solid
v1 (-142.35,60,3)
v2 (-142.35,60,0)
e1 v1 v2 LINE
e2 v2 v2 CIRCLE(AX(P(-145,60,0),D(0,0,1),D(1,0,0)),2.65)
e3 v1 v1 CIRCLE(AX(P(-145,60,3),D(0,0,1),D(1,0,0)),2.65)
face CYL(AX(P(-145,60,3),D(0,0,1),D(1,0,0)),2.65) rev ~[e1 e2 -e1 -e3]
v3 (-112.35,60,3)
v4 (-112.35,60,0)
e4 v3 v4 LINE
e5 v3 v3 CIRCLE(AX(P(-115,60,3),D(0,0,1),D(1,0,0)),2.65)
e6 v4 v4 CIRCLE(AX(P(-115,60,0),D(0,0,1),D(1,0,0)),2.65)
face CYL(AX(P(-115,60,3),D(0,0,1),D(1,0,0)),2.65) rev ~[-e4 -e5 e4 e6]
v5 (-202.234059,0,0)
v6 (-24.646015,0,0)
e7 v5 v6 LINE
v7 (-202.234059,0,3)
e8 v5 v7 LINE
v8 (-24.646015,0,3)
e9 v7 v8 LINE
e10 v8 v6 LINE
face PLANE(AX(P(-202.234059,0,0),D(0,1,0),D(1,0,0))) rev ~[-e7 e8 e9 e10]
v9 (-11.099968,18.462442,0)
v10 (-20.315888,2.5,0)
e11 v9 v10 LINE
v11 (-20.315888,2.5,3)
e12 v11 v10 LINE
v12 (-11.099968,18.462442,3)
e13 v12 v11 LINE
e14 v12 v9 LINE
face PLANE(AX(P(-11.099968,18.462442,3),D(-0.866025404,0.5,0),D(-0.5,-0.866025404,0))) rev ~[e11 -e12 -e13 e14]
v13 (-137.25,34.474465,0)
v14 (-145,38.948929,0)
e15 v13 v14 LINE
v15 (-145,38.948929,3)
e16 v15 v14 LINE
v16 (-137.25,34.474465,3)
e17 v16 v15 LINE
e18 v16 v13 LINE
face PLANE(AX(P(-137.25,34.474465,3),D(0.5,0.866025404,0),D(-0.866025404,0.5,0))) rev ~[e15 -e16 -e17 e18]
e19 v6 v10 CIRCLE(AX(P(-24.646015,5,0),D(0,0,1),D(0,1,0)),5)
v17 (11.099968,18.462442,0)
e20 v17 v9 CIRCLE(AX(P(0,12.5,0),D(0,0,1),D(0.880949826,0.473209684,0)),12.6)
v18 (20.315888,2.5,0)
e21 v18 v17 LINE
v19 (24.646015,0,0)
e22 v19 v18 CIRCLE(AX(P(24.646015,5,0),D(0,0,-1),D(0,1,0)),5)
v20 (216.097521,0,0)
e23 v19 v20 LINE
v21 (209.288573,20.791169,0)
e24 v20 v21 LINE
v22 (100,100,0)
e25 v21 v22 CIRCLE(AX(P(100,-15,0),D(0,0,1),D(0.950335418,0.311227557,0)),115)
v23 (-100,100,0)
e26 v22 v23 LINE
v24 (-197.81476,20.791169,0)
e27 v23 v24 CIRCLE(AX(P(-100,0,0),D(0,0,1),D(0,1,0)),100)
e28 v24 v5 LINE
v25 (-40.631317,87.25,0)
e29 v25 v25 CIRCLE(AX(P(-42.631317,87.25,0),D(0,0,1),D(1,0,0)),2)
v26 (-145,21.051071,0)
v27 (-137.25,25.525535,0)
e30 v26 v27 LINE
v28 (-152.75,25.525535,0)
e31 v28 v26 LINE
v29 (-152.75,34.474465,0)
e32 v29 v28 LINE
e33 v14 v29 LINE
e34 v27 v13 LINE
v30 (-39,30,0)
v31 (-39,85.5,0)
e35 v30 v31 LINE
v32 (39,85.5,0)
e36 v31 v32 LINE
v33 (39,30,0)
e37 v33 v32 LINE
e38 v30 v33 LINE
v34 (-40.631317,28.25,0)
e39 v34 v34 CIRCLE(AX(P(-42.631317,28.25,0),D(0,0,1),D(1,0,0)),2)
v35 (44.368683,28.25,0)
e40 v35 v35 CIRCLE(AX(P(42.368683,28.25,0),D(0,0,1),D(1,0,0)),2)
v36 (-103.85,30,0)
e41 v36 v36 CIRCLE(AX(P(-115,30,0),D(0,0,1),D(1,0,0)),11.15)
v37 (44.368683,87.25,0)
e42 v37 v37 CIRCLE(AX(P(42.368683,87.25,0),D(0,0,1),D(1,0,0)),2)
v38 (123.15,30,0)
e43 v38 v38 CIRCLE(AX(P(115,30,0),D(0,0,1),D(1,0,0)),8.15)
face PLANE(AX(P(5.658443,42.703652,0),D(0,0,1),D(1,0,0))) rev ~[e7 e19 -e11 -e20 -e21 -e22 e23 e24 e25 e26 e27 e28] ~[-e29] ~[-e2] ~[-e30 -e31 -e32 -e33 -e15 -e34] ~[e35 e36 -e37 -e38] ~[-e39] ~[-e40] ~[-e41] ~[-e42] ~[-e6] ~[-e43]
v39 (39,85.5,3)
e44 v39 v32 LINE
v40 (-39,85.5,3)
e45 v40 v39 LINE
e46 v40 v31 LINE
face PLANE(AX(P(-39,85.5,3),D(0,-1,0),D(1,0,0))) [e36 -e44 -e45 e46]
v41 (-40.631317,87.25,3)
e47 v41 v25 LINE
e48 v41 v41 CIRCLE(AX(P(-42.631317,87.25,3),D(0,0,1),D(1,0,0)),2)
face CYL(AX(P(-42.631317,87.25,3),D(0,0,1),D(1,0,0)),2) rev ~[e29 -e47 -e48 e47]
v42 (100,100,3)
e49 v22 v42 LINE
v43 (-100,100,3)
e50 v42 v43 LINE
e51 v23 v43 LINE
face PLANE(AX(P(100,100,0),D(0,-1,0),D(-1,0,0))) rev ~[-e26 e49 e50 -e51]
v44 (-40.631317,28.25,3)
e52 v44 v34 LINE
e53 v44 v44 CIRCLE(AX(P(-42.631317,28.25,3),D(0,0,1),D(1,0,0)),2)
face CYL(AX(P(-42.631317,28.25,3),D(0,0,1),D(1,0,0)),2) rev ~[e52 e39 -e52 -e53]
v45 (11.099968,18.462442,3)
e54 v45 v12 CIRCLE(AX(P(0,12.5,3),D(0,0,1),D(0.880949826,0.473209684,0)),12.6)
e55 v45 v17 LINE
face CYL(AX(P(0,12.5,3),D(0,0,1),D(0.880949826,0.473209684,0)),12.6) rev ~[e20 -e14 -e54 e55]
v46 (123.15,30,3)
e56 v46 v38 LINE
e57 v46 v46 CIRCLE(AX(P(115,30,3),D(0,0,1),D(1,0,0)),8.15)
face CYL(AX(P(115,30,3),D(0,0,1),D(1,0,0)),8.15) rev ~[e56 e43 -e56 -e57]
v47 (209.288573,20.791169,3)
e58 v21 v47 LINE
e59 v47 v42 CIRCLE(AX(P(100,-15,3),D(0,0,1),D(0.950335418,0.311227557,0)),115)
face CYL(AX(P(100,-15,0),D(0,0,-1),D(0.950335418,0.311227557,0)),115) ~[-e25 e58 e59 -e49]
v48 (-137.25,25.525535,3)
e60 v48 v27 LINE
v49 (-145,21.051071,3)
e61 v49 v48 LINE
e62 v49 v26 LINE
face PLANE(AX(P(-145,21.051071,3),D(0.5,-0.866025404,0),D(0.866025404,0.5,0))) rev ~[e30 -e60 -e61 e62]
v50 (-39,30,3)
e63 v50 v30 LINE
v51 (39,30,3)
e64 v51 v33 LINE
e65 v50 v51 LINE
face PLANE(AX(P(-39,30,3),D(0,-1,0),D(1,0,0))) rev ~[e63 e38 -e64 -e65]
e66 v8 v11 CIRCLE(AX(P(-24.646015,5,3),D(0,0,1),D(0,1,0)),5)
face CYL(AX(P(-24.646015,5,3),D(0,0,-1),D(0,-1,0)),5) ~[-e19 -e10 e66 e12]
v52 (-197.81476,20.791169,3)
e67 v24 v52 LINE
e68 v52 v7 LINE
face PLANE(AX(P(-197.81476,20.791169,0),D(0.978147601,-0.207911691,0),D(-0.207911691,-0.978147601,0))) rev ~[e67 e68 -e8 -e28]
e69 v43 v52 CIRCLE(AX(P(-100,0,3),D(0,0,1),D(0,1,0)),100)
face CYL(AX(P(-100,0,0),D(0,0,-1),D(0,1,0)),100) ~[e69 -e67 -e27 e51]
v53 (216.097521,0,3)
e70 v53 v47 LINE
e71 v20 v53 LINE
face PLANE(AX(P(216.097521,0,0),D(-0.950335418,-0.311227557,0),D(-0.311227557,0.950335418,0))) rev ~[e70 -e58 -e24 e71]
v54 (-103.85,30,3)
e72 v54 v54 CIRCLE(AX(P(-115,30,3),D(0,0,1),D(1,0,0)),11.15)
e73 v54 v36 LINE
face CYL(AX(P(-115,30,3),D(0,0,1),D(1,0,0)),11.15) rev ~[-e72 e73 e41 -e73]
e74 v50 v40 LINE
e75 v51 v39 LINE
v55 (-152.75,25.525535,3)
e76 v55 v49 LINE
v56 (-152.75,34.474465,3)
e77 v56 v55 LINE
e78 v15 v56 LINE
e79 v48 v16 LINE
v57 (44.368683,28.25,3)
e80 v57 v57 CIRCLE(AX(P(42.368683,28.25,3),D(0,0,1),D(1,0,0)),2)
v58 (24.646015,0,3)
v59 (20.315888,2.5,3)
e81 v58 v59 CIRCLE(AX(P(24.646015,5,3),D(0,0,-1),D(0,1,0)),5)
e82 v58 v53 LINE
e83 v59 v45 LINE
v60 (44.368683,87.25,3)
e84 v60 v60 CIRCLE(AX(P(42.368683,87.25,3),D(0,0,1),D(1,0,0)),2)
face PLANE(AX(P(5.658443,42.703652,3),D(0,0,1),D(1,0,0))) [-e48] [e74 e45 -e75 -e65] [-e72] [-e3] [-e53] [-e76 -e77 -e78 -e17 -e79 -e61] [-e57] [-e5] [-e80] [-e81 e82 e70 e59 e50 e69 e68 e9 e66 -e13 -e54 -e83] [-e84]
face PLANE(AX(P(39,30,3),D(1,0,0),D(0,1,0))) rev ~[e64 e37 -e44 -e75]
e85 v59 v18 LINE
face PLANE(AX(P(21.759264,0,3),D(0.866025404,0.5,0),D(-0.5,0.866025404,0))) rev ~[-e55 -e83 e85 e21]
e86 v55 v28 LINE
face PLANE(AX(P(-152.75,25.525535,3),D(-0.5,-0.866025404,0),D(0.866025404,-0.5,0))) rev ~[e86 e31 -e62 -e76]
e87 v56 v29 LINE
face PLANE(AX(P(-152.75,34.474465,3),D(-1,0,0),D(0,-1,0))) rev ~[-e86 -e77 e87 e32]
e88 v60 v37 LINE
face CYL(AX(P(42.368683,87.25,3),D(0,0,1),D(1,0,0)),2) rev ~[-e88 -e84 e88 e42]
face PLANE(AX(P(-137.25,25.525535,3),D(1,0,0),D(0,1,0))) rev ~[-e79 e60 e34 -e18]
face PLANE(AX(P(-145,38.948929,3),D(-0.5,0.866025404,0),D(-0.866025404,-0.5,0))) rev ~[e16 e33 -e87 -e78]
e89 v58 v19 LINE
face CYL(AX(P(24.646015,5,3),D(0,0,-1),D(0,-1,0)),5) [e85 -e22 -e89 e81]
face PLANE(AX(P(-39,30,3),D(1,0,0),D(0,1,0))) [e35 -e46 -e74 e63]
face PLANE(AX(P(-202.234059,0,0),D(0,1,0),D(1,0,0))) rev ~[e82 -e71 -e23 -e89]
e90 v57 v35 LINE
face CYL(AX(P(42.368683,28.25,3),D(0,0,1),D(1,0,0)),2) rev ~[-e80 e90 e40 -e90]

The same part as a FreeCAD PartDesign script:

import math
import FreeCAD as App
import Part
import Sketcher
Q = App.Units.Quantity


def edges_at(feature, points):
    """Names of the edges that pass closest to the given points."""
    edges = feature.Shape.Edges
    near = lambda p: min(range(len(edges)), key=lambda i: edges[i].distToShape(Part.Vertex(*p))[0])
    return sorted({f"Edge{near(p) + 1}" for p in points})

doc = App.newDocument("Part")
body = doc.addObject("PartDesign::Body", "Body")

# Sketch on XY plane
sketch1 = body.newObject("Sketcher::SketchObject", "Sketch")
sketch1.AttachmentSupport = (doc.getObject("XY_Plane"), [""])
sketch1.MapMode = "FlatFace"
sketch1.addGeometry([
    Part.LineSegment(App.Vector(-198, 21, 0), App.Vector(-202, 0, 0)),  # 0
    Part.LineSegment(App.Vector(-202, 0, 0), App.Vector(216, 0, 0)),  # 1
    Part.LineSegment(App.Vector(216, 0, 0), App.Vector(209, 21, 0)),  # 2
    Part.ArcOfCircle(Part.Circle(App.Vector(100, -15, 0), App.Vector(0, 0, 1), 115), math.radians(18), math.radians(90)),  # 3
    Part.LineSegment(App.Vector(100, 100, 0), App.Vector(-100, 100, 0)),  # 4
    Part.ArcOfCircle(Part.Circle(App.Vector(-100, 0, 0), App.Vector(0, 0, 1), 100), math.radians(90), math.radians(168)),  # 5
], False)
sketch1.addConstraint([
    Sketcher.Constraint("Coincident", 0, 2, 1, 1),
    Sketcher.Constraint("Coincident", 1, 2, 2, 1),
    Sketcher.Constraint("Tangent", 2, 2, 3, 1),
    Sketcher.Constraint("Tangent", 3, 2, 4, 1),
    Sketcher.Constraint("Tangent", 4, 2, 5, 1),
    Sketcher.Constraint("Tangent", 5, 2, 0, 1),
    Sketcher.Constraint("Horizontal", 1),
    Sketcher.Constraint("Horizontal", 4),
    Sketcher.Constraint("PointOnObject", 5, 3, -1),
    Sketcher.Constraint("PointOnObject", 0, 2, -1),
    Sketcher.Constraint("Horizontal", 2, 2, 5, 2),
    Sketcher.Constraint("Radius", 3, 115.0),
    Sketcher.Constraint("Radius", 5, 100.0),
    Sketcher.Constraint("DistanceX", 4, 2, 4, 1, 200.0),
    Sketcher.Constraint("Angle", 0, Q("-102 deg")),
    Sketcher.Constraint("DistanceX", -1, 1, 3, 3, 100.0),
])
pad1 = body.newObject("PartDesign::Pad", "Pad")
pad1.Profile = sketch1
pad1.Length = 3

# Sketch on XY plane
sketch2 = body.newObject("Sketcher::SketchObject", "Sketch001")
sketch2.AttachmentSupport = (doc.getObject("XY_Plane"), [""])
sketch2.MapMode = "FlatFace"
sketch2.AttachmentOffset = App.Placement(App.Vector(0, 0, 3), App.Rotation())
sketch2.addGeometry([
    Part.ArcOfCircle(Part.Circle(App.Vector(0, 12.5, 0), App.Vector(0, 0, 1), 12.6), math.radians(28), math.radians(152)),  # 0
    Part.LineSegment(App.Vector(-11.1, 18.5, 0), App.Vector(-21.8, 0, 0)),  # 1
    Part.LineSegment(App.Vector(-21.8, 0, 0), App.Vector(-1.6, 0, 0)),  # 2
    Part.ArcOfCircle(Part.Circle(App.Vector(0, 12.5, 0), App.Vector(0, 0, 1), 12.6), math.radians(-97.22), math.radians(-82.78)),  # 3
    Part.LineSegment(App.Vector(1.6, 0, 0), App.Vector(21.8, 0, 0)),  # 4
    Part.LineSegment(App.Vector(21.8, 0, 0), App.Vector(11.1, 18.5, 0)),  # 5
], False)
sketch2.addConstraint([
    Sketcher.Constraint("Coincident", 0, 2, 1, 1),
    Sketcher.Constraint("Coincident", 1, 2, 2, 1),
    Sketcher.Constraint("Coincident", 2, 2, 3, 1),
    Sketcher.Constraint("Coincident", 3, 2, 4, 1),
    Sketcher.Constraint("Coincident", 4, 2, 5, 1),
    Sketcher.Constraint("Coincident", 5, 2, 0, 1),
    Sketcher.Constraint("Horizontal", 2),
    Sketcher.Constraint("Horizontal", 4),
    Sketcher.Constraint("Coincident", 3, 3, 0, 3),
    Sketcher.Constraint("Equal", 0, 3),
    Sketcher.Constraint("Symmetric", 2, 2, 3, 2, -1, 1),
    Sketcher.Constraint("Symmetric", 1, 2, 4, 2, -2),
    Sketcher.Constraint("Horizontal", 0, 2, 5, 2),
    Sketcher.Constraint("Radius", 0, 12.6),
    Sketcher.Constraint("Angle", 1, Q("-120 deg")),
    Sketcher.Constraint("DistanceY", -1, 1, 0, 3, 12.5),
    Sketcher.Constraint("Distance", 1, 21.318592),
])
pocket1 = body.newObject("PartDesign::Pocket", "Pocket")
pocket1.Profile = sketch2
pocket1.Length = 25
doc.recompute()

fillet = body.newObject("PartDesign::Fillet", "Fillet")
fillet.Base = (pocket1, edges_at(pocket1, [(-21.759, 0, 1.5), (21.759, 0, 1.5)]))
fillet.Radius = 5

# Sketch on XY plane
sketch3 = body.newObject("Sketcher::SketchObject", "Sketch002")
sketch3.AttachmentSupport = (doc.getObject("XY_Plane"), [""])
sketch3.MapMode = "FlatFace"
sketch3.AttachmentOffset = App.Placement(App.Vector(0, 0, 3), App.Rotation())
sketch3.addGeometry([
    Part.LineSegment(App.Vector(-145, 38.9, 0), App.Vector(-152.8, 34.5, 0)),  # 0
    Part.LineSegment(App.Vector(-152.8, 34.5, 0), App.Vector(-152.8, 25.5, 0)),  # 1
    Part.LineSegment(App.Vector(-152.8, 25.5, 0), App.Vector(-145, 21.1, 0)),  # 2
    Part.LineSegment(App.Vector(-145, 21.1, 0), App.Vector(-137.2, 25.5, 0)),  # 3
    Part.LineSegment(App.Vector(-137.2, 25.5, 0), App.Vector(-137.2, 34.5, 0)),  # 4
    Part.LineSegment(App.Vector(-137.2, 34.5, 0), App.Vector(-145, 38.9, 0)),  # 5
    Part.Circle(App.Vector(-115, 30, 0), App.Vector(0, 0, 1), 11.2),  # 6
    Part.Circle(App.Vector(-115, 60, 0), App.Vector(0, 0, 1), 2.6),  # 7
    Part.Circle(App.Vector(-145, 60, 0), App.Vector(0, 0, 1), 2.6),  # 8
], False)
sketch3.addConstraint([
    Sketcher.Constraint("Coincident", 0, 2, 1, 1),
    Sketcher.Constraint("Coincident", 1, 2, 2, 1),
    Sketcher.Constraint("Coincident", 2, 2, 3, 1),
    Sketcher.Constraint("Coincident", 3, 2, 4, 1),
    Sketcher.Constraint("Coincident", 4, 2, 5, 1),
    Sketcher.Constraint("Coincident", 5, 2, 0, 1),
    Sketcher.Constraint("Vertical", 1),
    Sketcher.Constraint("Vertical", 4),
    Sketcher.Constraint("Equal", 7, 8),
    Sketcher.Constraint("Parallel", 0, 3),
    Sketcher.Constraint("Parallel", 2, 5),
    Sketcher.Constraint("Horizontal", 7, 3, 8, 3),
    Sketcher.Constraint("Horizontal", 1, 2, 3, 2),
    Sketcher.Constraint("Horizontal", 0, 2, 4, 2),
    Sketcher.Constraint("Vertical", 6, 3, 7, 3),
    Sketcher.Constraint("Vertical", 8, 3, 2, 2),
    Sketcher.Constraint("Vertical", 2, 2, 5, 2),
    Sketcher.Constraint("Diameter", 6, 22.3),
    Sketcher.Constraint("Diameter", 7, 5.3),
    Sketcher.Constraint("Angle", 0, Q("-150 deg")),
    Sketcher.Constraint("DistanceX", 6, 3, -1, 1, 115.0),
    Sketcher.Constraint("DistanceY", -1, 1, 6, 3, 30.0),
    Sketcher.Constraint("DistanceY", -1, 1, 7, 3, 60.0),
    Sketcher.Constraint("DistanceX", 8, 3, -1, 1, 145.0),
    Sketcher.Constraint("DistanceX", 1, 2, 3, 2, 15.5),
    Sketcher.Constraint("DistanceY", 1, 2, 1, 1, 8.948929),
    Sketcher.Constraint("DistanceY", -1, 1, 2, 2, 21.051071),
])
pocket2 = body.newObject("PartDesign::Pocket", "Pocket001")
pocket2.Profile = sketch3
pocket2.Length = 25

# Sketch on XY plane
sketch4 = body.newObject("Sketcher::SketchObject", "Sketch003")
sketch4.AttachmentSupport = (doc.getObject("XY_Plane"), [""])
sketch4.MapMode = "FlatFace"
sketch4.AttachmentOffset = App.Placement(App.Vector(0, 0, 3), App.Rotation())
sketch4.addGeometry([
    Part.LineSegment(App.Vector(-39, 85.5, 0), App.Vector(-39, 30, 0)),  # 0
    Part.LineSegment(App.Vector(-39, 30, 0), App.Vector(39, 30, 0)),  # 1
    Part.LineSegment(App.Vector(39, 30, 0), App.Vector(39, 85.5, 0)),  # 2
    Part.LineSegment(App.Vector(39, 85.5, 0), App.Vector(-39, 85.5, 0)),  # 3
    Part.Circle(App.Vector(-42.6, 28.2, 0), App.Vector(0, 0, 1), 2),  # 4
    Part.Circle(App.Vector(-42.6, 87.2, 0), App.Vector(0, 0, 1), 2),  # 5
    Part.Circle(App.Vector(42.4, 87.2, 0), App.Vector(0, 0, 1), 2),  # 6
    Part.Circle(App.Vector(42.4, 28.2, 0), App.Vector(0, 0, 1), 2),  # 7
], False)
sketch4.addConstraint([
    Sketcher.Constraint("Coincident", 0, 2, 1, 1),
    Sketcher.Constraint("Coincident", 1, 2, 2, 1),
    Sketcher.Constraint("Coincident", 2, 2, 3, 1),
    Sketcher.Constraint("Coincident", 3, 2, 0, 1),
    Sketcher.Constraint("Vertical", 0),
    Sketcher.Constraint("Horizontal", 1),
    Sketcher.Constraint("Vertical", 2),
    Sketcher.Constraint("Horizontal", 3),
    Sketcher.Constraint("Equal", 4, 5),
    Sketcher.Constraint("Equal", 5, 6),
    Sketcher.Constraint("Equal", 6, 7),
    Sketcher.Constraint("Horizontal", 5, 3, 6, 3),
    Sketcher.Constraint("Horizontal", 4, 3, 7, 3),
    Sketcher.Constraint("Vertical", 4, 3, 5, 3),
    Sketcher.Constraint("Vertical", 6, 3, 7, 3),
    Sketcher.Constraint("Diameter", 4, 4.0),
    Sketcher.Constraint("DistanceX", 1, 1, 1, 2, 78.0),
    Sketcher.Constraint("DistanceY", 0, 2, 0, 1, 55.5),
    Sketcher.Constraint("DistanceX", 0, 2, -1, 1, 39.0),
    Sketcher.Constraint("DistanceY", -1, 1, 0, 2, 30.0),
    Sketcher.Constraint("DistanceY", 4, 3, 5, 3, 59.0),
    Sketcher.Constraint("DistanceX", 5, 3, 6, 3, 85.0),
    Sketcher.Constraint("DistanceY", -1, 1, 4, 3, 28.25),
    Sketcher.Constraint("DistanceX", 4, 3, -1, 1, 42.631317),
])
pocket3 = body.newObject("PartDesign::Pocket", "Pocket002")
pocket3.Profile = sketch4
pocket3.Length = 25

# Sketch on XY plane
sketch5 = body.newObject("Sketcher::SketchObject", "Sketch004")
sketch5.AttachmentSupport = (doc.getObject("XY_Plane"), [""])
sketch5.MapMode = "FlatFace"
sketch5.AttachmentOffset = App.Placement(App.Vector(0, 0, 3), App.Rotation())
sketch5.addGeometry(Part.Circle(App.Vector(115, 30, 0), App.Vector(0, 0, 1), 8), False)
sketch5.addConstraint([
    Sketcher.Constraint("Diameter", 0, 16.3),
    Sketcher.Constraint("DistanceX", -1, 1, 0, 3, 115.0),
    Sketcher.Constraint("DistanceY", -1, 1, 0, 3, 30.0),
])
pocket4 = body.newObject("PartDesign::Pocket", "Pocket003")
pocket4.Profile = sketch5
pocket4.Length = 25

doc.recompute()
